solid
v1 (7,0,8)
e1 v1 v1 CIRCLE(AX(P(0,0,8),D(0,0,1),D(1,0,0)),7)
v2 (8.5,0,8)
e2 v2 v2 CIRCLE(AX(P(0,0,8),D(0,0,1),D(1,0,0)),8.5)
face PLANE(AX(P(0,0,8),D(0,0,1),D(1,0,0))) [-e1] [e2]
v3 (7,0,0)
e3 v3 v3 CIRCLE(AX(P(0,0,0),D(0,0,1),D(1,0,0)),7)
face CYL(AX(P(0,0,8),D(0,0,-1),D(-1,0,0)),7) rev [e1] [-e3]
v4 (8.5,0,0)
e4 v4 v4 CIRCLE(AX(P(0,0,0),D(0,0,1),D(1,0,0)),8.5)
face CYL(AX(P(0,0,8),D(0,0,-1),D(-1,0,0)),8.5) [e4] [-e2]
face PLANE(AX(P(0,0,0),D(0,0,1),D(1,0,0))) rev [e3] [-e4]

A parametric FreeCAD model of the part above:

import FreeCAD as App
import Part
import Sketcher

V = App.Vector

doc = App.newDocument("Part")
params = doc.addObject("Spreadsheet::Sheet", "Params")
for row, (alias, value) in enumerate([
    ("sketch1_diameter", "17 mm"),
    ("sketch1_diameter2", "14 mm"),
    ("pad1_length", "8 mm"),
], start=1):
    params.set(f"A{row}", alias)
    params.set(f"B{row}", "=" + value)
    params.setAlias(f"B{row}", alias)

body = doc.addObject("PartDesign::Body", "Body")

# Sketch on XY plane
sketch1 = body.newObject("Sketcher::SketchObject", "Sketch")
sketch1.AttachmentSupport = (doc.getObject("XY_Plane"), [""])
sketch1.MapMode = "FlatFace"
sketch1.addGeometry([
    Part.Circle(V(0, 0, 0), V(0, 0, 1), 8.5),
    Part.Circle(V(0, 0, 0), V(0, 0, 1), 7),
], False)
sketch1.addConstraint([
    Sketcher.Constraint("Coincident", 0, 3, -1, 1),
    Sketcher.Constraint("Coincident", 1, 3, -1, 1),
    Sketcher.Constraint("Diameter", 0, 17.0),
    Sketcher.Constraint("Diameter", 1, 14.0),
])
sketch1.setExpression("Constraints[2]", "Params.sketch1_diameter")
sketch1.setExpression("Constraints[3]", "Params.sketch1_diameter2")
pad1 = body.newObject("PartDesign::Pad", "Pad")
pad1.Profile = sketch1
pad1.setExpression("Length", "Params.pad1_length")

doc.recompute()
